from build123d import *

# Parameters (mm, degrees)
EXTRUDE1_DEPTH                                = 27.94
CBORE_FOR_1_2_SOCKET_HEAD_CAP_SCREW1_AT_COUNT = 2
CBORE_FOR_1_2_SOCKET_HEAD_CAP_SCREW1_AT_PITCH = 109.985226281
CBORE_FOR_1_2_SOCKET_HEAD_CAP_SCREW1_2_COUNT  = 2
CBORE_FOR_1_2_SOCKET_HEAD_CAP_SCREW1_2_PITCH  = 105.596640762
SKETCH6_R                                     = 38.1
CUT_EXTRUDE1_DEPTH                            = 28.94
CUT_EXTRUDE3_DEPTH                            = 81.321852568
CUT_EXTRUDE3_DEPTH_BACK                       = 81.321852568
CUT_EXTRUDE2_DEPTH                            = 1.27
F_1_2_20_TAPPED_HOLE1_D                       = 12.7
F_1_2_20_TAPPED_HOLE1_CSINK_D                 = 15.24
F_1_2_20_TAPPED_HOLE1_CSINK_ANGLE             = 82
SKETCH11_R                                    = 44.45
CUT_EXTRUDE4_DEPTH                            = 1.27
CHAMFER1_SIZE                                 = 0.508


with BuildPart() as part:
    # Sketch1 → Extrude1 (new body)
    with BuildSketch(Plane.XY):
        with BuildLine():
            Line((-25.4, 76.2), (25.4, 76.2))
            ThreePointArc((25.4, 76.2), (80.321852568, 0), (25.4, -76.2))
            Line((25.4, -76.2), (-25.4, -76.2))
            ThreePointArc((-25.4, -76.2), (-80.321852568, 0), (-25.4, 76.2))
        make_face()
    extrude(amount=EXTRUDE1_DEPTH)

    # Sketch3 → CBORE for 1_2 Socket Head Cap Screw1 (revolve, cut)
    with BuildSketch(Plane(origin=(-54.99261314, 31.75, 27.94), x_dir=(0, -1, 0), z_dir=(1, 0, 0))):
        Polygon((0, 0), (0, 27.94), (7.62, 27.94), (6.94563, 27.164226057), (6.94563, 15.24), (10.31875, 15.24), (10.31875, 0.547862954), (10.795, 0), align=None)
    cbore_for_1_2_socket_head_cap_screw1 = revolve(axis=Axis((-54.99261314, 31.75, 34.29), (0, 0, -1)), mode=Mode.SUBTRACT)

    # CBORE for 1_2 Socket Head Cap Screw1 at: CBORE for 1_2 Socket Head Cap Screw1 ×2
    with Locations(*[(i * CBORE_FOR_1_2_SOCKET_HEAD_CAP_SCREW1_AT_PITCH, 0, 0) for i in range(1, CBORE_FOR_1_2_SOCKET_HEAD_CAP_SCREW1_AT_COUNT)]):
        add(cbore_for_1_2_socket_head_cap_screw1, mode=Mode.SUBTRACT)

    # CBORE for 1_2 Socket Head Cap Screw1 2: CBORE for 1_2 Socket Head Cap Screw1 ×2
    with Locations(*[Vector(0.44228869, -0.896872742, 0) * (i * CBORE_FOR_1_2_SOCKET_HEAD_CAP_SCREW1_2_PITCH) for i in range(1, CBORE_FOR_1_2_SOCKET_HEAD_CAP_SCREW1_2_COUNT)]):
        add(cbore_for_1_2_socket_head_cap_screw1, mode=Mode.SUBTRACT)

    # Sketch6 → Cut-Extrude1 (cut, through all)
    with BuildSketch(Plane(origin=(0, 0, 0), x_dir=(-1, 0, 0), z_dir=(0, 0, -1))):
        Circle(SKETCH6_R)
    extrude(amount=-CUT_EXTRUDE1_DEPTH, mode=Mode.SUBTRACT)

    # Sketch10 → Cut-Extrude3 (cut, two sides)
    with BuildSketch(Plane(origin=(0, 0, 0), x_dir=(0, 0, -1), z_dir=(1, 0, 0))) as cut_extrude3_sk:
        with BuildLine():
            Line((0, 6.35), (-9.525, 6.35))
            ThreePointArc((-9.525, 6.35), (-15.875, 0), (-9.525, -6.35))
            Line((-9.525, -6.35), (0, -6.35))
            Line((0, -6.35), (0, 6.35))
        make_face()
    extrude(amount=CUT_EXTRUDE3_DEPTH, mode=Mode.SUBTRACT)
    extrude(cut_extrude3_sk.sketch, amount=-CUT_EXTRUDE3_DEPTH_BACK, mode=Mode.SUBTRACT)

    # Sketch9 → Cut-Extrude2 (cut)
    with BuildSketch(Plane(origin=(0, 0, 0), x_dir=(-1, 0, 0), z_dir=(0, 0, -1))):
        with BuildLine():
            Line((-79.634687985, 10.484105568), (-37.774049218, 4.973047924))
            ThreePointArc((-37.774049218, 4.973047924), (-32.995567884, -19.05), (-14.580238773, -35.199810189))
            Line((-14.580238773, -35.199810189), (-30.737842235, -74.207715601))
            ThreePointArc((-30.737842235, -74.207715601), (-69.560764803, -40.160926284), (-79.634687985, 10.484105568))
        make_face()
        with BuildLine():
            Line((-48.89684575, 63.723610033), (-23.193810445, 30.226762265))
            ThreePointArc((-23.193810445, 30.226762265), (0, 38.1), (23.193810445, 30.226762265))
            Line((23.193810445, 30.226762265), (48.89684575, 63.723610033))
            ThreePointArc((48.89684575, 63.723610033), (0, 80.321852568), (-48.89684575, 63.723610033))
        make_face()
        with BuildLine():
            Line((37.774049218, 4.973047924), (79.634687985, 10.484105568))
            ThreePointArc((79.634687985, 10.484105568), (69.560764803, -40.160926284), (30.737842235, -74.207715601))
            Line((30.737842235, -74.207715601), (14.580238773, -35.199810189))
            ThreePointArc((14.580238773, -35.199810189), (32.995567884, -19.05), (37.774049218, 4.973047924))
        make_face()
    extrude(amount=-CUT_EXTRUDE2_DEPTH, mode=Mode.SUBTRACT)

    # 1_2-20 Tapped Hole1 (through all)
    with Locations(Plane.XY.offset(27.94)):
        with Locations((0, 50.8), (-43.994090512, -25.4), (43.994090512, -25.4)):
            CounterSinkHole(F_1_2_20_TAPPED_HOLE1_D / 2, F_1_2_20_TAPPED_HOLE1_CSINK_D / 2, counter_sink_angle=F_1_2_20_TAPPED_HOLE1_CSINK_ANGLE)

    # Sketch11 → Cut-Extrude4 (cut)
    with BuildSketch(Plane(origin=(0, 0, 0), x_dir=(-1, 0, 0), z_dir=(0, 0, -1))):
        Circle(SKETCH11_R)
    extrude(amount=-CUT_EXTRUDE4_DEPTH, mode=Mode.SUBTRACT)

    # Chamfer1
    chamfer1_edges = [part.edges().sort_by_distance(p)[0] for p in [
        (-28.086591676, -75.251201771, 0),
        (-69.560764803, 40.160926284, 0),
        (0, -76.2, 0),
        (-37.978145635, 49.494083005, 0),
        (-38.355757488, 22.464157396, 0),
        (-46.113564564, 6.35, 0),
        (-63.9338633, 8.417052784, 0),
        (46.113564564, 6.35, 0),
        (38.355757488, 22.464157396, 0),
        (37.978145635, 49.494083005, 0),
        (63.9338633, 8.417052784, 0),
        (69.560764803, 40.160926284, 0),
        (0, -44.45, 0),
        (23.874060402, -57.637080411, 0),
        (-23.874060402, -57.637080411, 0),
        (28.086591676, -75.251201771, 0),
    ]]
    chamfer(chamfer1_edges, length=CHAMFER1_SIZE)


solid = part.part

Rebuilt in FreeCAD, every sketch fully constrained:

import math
import FreeCAD as App
import Part
import Sketcher

V = App.Vector
Q = App.Units.Quantity


def edges_at(feature, points):
    """Names of the edges that pass closest to the given points."""
    edges = feature.Shape.Edges
    near = lambda p: min(range(len(edges)), key=lambda i: edges[i].distToShape(Part.Vertex(*p))[0])
    return sorted({f"Edge{near(p) + 1}" for p in points})


def add_polygon(sketch, points):
    """Adds a closed chain of lines whose ends are joined by coincident constraints."""
    first, n = sketch.GeometryCount, len(points)
    for a, b in zip(points, points[1:] + points[:1]):
        sketch.addGeometry(Part.LineSegment(App.Vector(*a, 0), App.Vector(*b, 0)), False)
    for i in range(n):
        sketch.addConstraint(Sketcher.Constraint("Coincident", first + i, 2, first + (i + 1) % n, 1))

doc = App.newDocument("Part")
body = doc.addObject("PartDesign::Body", "Body")

# Sketch on XY plane
sketch1 = body.newObject("Sketcher::SketchObject", "Sketch")
sketch1.AttachmentSupport = (doc.getObject("XY_Plane"), [""])
sketch1.MapMode = "FlatFace"
sketch1.addGeometry(Part.LineSegment(V(25, 76, 0), V(-25, 76, 0)), False)
sketch1.addGeometry(Part.ArcOfCircle(Part.Circle(V(0, 0, 0), V(0, 0, 1), 80), math.radians(108), math.radians(252)), False)
sketch1.addGeometry(Part.LineSegment(V(-25, -76, 0), V(25, -76, 0)), False)
sketch1.addGeometry(Part.ArcOfCircle(Part.Circle(V(0, 0, 0), V(0, 0, 1), 80), math.radians(-72), math.radians(72)), False)
sketch1.addConstraint(Sketcher.Constraint("Coincident", 0, 2, 1, 1))
sketch1.addConstraint(Sketcher.Constraint("Coincident", 1, 2, 2, 1))
sketch1.addConstraint(Sketcher.Constraint("Coincident", 2, 2, 3, 1))
sketch1.addConstraint(Sketcher.Constraint("Coincident", 3, 2, 0, 1))
sketch1.addConstraint(Sketcher.Constraint("Horizontal", 0))
sketch1.addConstraint(Sketcher.Constraint("Horizontal", 2))
sketch1.addConstraint(Sketcher.Constraint("Coincident", 1, 3, -1, 1))
sketch1.addConstraint(Sketcher.Constraint("Coincident", 3, 3, -1, 1))
sketch1.addConstraint(Sketcher.Constraint("Equal", 1, 3))
sketch1.addConstraint(Sketcher.Constraint("Vertical", 0, 2, 1, 2))
sketch1.addConstraint(Sketcher.Constraint("DistanceX", 0, 2, 0, 1, Q("2 in")))
sketch1.addConstraint(Sketcher.Constraint("DistanceY", -1, 1, 0, 2, Q("3 in")))
pad1 = body.newObject("PartDesign::Pad", "Pad")
pad1.Profile = sketch1
pad1.Length = Q("1.1 in")

# Sketch on YZ plane
sketch2 = body.newObject("Sketcher::SketchObject", "Sketch001")
sketch2.AttachmentSupport = (doc.getObject("YZ_Plane"), [""])
sketch2.MapMode = "FlatFace"
sketch2.AttachmentOffset = App.Placement(V(0, 0, -54.992613), App.Rotation())
add_polygon(sketch2, [(31.8, 0), (31.8, 27.9), (21, 27.9), (21.4, 27.4), (21.4, 12.7), (24.8, 12.7), (24.8, 0.8), (24.1, 0)])  # lines 0-7
sketch2.addGeometry(Part.LineSegment(V(31.8, 27.9, 0), V(31.8, 0, 0)), True)  # axis
sketch2.addConstraint(Sketcher.Constraint("Vertical", 0))
sketch2.addConstraint(Sketcher.Constraint("Horizontal", 1))
sketch2.addConstraint(Sketcher.Constraint("Vertical", 3))
sketch2.addConstraint(Sketcher.Constraint("Horizontal", 4))
sketch2.addConstraint(Sketcher.Constraint("Vertical", 5))
sketch2.addConstraint(Sketcher.Constraint("Horizontal", 7))
sketch2.addConstraint(Sketcher.Constraint("Vertical", 8))
sketch2.addConstraint(Sketcher.Constraint("Coincident", 8, 1, 0, 2))
sketch2.addConstraint(Sketcher.Constraint("PointOnObject", 6, 2, -1))
sketch2.addConstraint(Sketcher.Constraint("PointOnObject", 8, 2, -1))
sketch2.addConstraint(Sketcher.Constraint("DistanceX", 7, 1, 7, 2, Q("0.3 in")))
sketch2.addConstraint(Sketcher.Constraint("DistanceY", 0, 1, 0, 2, Q("1.1 in")))
sketch2.addConstraint(Sketcher.Constraint("Angle", 2, Q("-49 deg")))
sketch2.addConstraint(Sketcher.Constraint("Angle", 6, Q("-131 deg")))
sketch2.addConstraint(Sketcher.Constraint("DistanceY", -1, 1, 3, 2, Q("0.5 in")))
sketch2.addConstraint(Sketcher.Constraint("DistanceX", 1, 2, 1, 1, Q("0.425 in")))
sketch2.addConstraint(Sketcher.Constraint("DistanceX", -1, 1, 0, 2, Q("1.25 in")))
sketch2.addConstraint(Sketcher.Constraint("DistanceX", 4, 1, 4, 2, Q("0.1328 in")))
sketch2.addConstraint(Sketcher.Constraint("DistanceX", -1, 1, 2, 2, Q("0.84375 in")))
groove = body.newObject("PartDesign::Groove", "Groove")
groove.Profile = sketch2
groove.ReferenceAxis = (sketch2, ["Axis0"])
groove.Angle = 360
doc.recompute()

linearpattern = body.newObject("PartDesign::LinearPattern", "LinearPattern")
linearpattern.Originals = [groove]
linearpattern.Direction = (doc.getObject("X_Axis"), [""])
linearpattern.Mode = "offset"
linearpattern.Offset = 109.985226
linearpattern.Occurrences = 2
body.Tip = linearpattern
doc.recompute()

datumline = body.newObject("PartDesign::Line", "DatumLine")
datumline.Placement = App.Placement(V(0, 0, 0), App.Rotation(V(0, 0, 1), V(0.44228869, -0.896872742, 0)))
linearpattern2 = body.newObject("PartDesign::LinearPattern", "LinearPattern001")
linearpattern2.Originals = [groove]
linearpattern2.Direction = (datumline, [""])
linearpattern2.Mode = "offset"
linearpattern2.Offset = 105.596641
linearpattern2.Occurrences = 2
body.Tip = linearpattern2

# Sketch on XY plane
sketch3 = body.newObject("Sketcher::SketchObject", "Sketch002")
sketch3.AttachmentSupport = (doc.getObject("XY_Plane"), [""])
sketch3.MapMode = "FlatFace"
sketch3.addGeometry(Part.Circle(V(0, 0, 0), V(0, 0, 1), 38), False)
sketch3.addConstraint(Sketcher.Constraint("Coincident", 0, 3, -1, 1))
sketch3.addConstraint(Sketcher.Constraint("Diameter", 0, Q("3 in")))
pocket1 = body.newObject("PartDesign::Pocket", "Pocket")
pocket1.Profile = sketch3
pocket1.Type = "ThroughAll"
pocket1.Reversed = True

# Sketch on YZ plane
sketch4 = body.newObject("Sketcher::SketchObject", "Sketch003")
sketch4.AttachmentSupport = (doc.getObject("YZ_Plane"), [""])
sketch4.MapMode = "FlatFace"
sketch4.addGeometry(Part.LineSegment(V(6, 0, 0), V(6, 10, 0)), False)
sketch4.addGeometry(Part.ArcOfCircle(Part.Circle(V(0, 10, 0), V(0, 0, 1), 6), math.radians(0), math.radians(180)), False)
sketch4.addGeometry(Part.LineSegment(V(-6, 10, 0), V(-6, 0, 0)), False)
sketch4.addGeometry(Part.LineSegment(V(-6, 0, 0), V(6, 0, 0)), False)
sketch4.addConstraint(Sketcher.Constraint("Tangent", 0, 2, 1, 1))
sketch4.addConstraint(Sketcher.Constraint("Tangent", 1, 2, 2, 1))
sketch4.addConstraint(Sketcher.Constraint("Coincident", 2, 2, 3, 1))
sketch4.addConstraint(Sketcher.Constraint("Coincident", 3, 2, 0, 1))
sketch4.addConstraint(Sketcher.Constraint("Vertical", 0))
sketch4.addConstraint(Sketcher.Constraint("Vertical", 2))
sketch4.addConstraint(Sketcher.Constraint("Horizontal", 3))
sketch4.addConstraint(Sketcher.Constraint("Symmetric", 2, 2, 3, 2, -1, 1))
sketch4.addConstraint(Sketcher.Constraint("Radius", 1, Q("0.25 in")))
sketch4.addConstraint(Sketcher.Constraint("DistanceY", 0, 1, 0, 2, Q("0.375 in")))
pocket2 = body.newObject("PartDesign::Pocket", "Pocket001")
pocket2.Profile = sketch4
pocket2.Type = "ThroughAll"
pocket2.Midplane = True

# Sketch on XY plane
sketch5 = body.newObject("Sketcher::SketchObject", "Sketch004")
sketch5.AttachmentSupport = (doc.getObject("XY_Plane"), [""])
sketch5.MapMode = "FlatFace"
sketch5.addGeometry(Part.LineSegment(V(38, 5, 0), V(80, 10, 0)), False)
sketch5.addGeometry(Part.ArcOfCircle(Part.Circle(V(0, 0, 0), V(0, 0, 1), 80), math.radians(-67), math.radians(7)), False)
sketch5.addGeometry(Part.LineSegment(V(31, -74, 0), V(15, -35, 0)), False)
sketch5.addGeometry(Part.ArcOfCircle(Part.Circle(V(0, 0, 0), V(0, 0, 1), 38), math.radians(-67), math.radians(8)), False)
sketch5.addGeometry(Part.LineSegment(V(49, 64, 0), V(23, 30, 0)), False)
sketch5.addGeometry(Part.ArcOfCircle(Part.Circle(V(0, 0, 0), V(0, 0, 1), 38), math.radians(52), math.radians(128)), False)
sketch5.addGeometry(Part.LineSegment(V(-23, 30, 0), V(-49, 64, 0)), False)
sketch5.addGeometry(Part.ArcOfCircle(Part.Circle(V(0, 0, 0), V(0, 0, 1), 80), math.radians(52), math.radians(128)), False)
sketch5.addGeometry(Part.LineSegment(V(-80, 10, 0), V(-38, 5, 0)), False)
sketch5.addGeometry(Part.ArcOfCircle(Part.Circle(V(0, 0, 0), V(0, 0, 1), 38), math.radians(172), math.radians(247)), False)
sketch5.addGeometry(Part.LineSegment(V(-15, -35, 0), V(-31, -74, 0)), False)
sketch5.addGeometry(Part.ArcOfCircle(Part.Circle(V(0, 0, 0), V(0, 0, 1), 80), math.radians(173), math.radians(247)), False)
sketch5.addConstraint(Sketcher.Constraint("Coincident", 0, 2, 1, 2))
sketch5.addConstraint(Sketcher.Constraint("Coincident", 1, 1, 2, 1))
sketch5.addConstraint(Sketcher.Constraint("Coincident", 2, 2, 3, 1))
sketch5.addConstraint(Sketcher.Constraint("Coincident", 3, 2, 0, 1))
sketch5.addConstraint(Sketcher.Constraint("Coincident", 4, 2, 5, 1))
sketch5.addConstraint(Sketcher.Constraint("Coincident", 5, 2, 6, 1))
sketch5.addConstraint(Sketcher.Constraint("Coincident", 6, 2, 7, 2))
sketch5.addConstraint(Sketcher.Constraint("Coincident", 7, 1, 4, 1))
sketch5.addConstraint(Sketcher.Constraint("Coincident", 8, 2, 9, 1))
sketch5.addConstraint(Sketcher.Constraint("Coincident", 9, 2, 10, 1))
sketch5.addConstraint(Sketcher.Constraint("Coincident", 10, 2, 11, 2))
sketch5.addConstraint(Sketcher.Constraint("Coincident", 11, 1, 8, 1))
sketch5.addConstraint(Sketcher.Constraint("Coincident", 1, 3, -1, 1))
sketch5.addConstraint(Sketcher.Constraint("Coincident", 3, 3, -1, 1))
sketch5.addConstraint(Sketcher.Constraint("Coincident", 5, 3, -1, 1))
sketch5.addConstraint(Sketcher.Constraint("Coincident", 7, 3, -1, 1))
sketch5.addConstraint(Sketcher.Constraint("Coincident", 9, 3, -1, 1))
sketch5.addConstraint(Sketcher.Constraint("Coincident", 11, 3, -1, 1))
sketch5.addConstraint(Sketcher.Constraint("Equal", 3, 5))
sketch5.addConstraint(Sketcher.Constraint("Equal", 1, 7))
sketch5.addConstraint(Sketcher.Constraint("Equal", 5, 9))
sketch5.addConstraint(Sketcher.Constraint("Equal", 7, 11))
sketch5.addConstraint(Sketcher.Constraint("Horizontal", 4, 2, 5, 2))
sketch5.addConstraint(Sketcher.Constraint("Horizontal", 6, 2, 7, 1))
sketch5.addConstraint(Sketcher.Constraint("Horizontal", 3, 2, 8, 2))
sketch5.addConstraint(Sketcher.Constraint("Horizontal", 2, 2, 9, 2))
sketch5.addConstraint(Sketcher.Constraint("Horizontal", 1, 1, 10, 2))
sketch5.addConstraint(Sketcher.Constraint("Horizontal", 0, 2, 11, 1))
sketch5.addConstraint(Sketcher.Constraint("Radius", 3, Q("1.5 in")))
sketch5.addConstraint(Sketcher.Constraint("Angle", 0, Q("7.5 deg")))
sketch5.addConstraint(Sketcher.Constraint("Angle", 2, Q("112.5 deg")))
sketch5.addConstraint(Sketcher.Constraint("Angle", 4, Q("-127.5 deg")))
sketch5.addConstraint(Sketcher.Constraint("Radius", 1, Q("80.321853 mm")))
sketch5.addConstraint(Sketcher.Constraint("DistanceX", -1, 1, 2, 2, Q("14.580239 mm")))
sketch5.addConstraint(Sketcher.Constraint("DistanceX", -1, 1, 3, 2, Q("37.774049 mm")))
sketch5.addConstraint(Sketcher.Constraint("DistanceX", -1, 1, 4, 2, Q("23.19381 mm")))
pocket3 = body.newObject("PartDesign::Pocket", "Pocket002")
pocket3.Profile = sketch5
pocket3.Length = Q("0.05 in")
pocket3.Reversed = True

# Sketch on XY plane
sketch6 = body.newObject("Sketcher::SketchObject", "Sketch005")
sketch6.AttachmentSupport = (doc.getObject("XY_Plane"), [""])
sketch6.MapMode = "FlatFace"
sketch6.AttachmentOffset = App.Placement(V(0, 0, 1.1 * 25.4), App.Rotation())
sketch6.addGeometry(Part.Circle(V(0, 51, 0), V(0, 0, 1), 6), False)
sketch6.addGeometry(Part.Circle(V(-44, -25, 0), V(0, 0, 1), 6), False)
sketch6.addGeometry(Part.Circle(V(44, -25, 0), V(0, 0, 1), 6), False)
sketch6.addConstraint(Sketcher.Constraint("Equal", 0, 1))
sketch6.addConstraint(Sketcher.Constraint("Equal", 1, 2))
sketch6.addConstraint(Sketcher.Constraint("Symmetric", 1, 3, 2, 3, -2))
sketch6.addConstraint(Sketcher.Constraint("PointOnObject", 0, 3, -2))
sketch6.addConstraint(Sketcher.Constraint("Diameter", 0, Q("0.5 in")))
sketch6.addConstraint(Sketcher.Constraint("DistanceY", -1, 1, 0, 3, Q("2 in")))
sketch6.addConstraint(Sketcher.Constraint("DistanceY", 1, 3, -1, 1, Q("1 in")))
sketch6.addConstraint(Sketcher.Constraint("DistanceX", 1, 3, -1, 1, Q("43.994091 mm")))
doc.recompute()
hole = body.newObject("PartDesign::Hole", "Hole")
hole.Profile = sketch6
hole.ThreadType = "None"
hole.Diameter = Q("0.5 in")
hole.DepthType = "ThroughAll"
hole.HoleCutType = "Countersink"
hole.HoleCutDiameter = Q("0.6 in")
hole.HoleCutCountersinkAngle = 82

# Sketch on XY plane
sketch7 = body.newObject("Sketcher::SketchObject", "Sketch006")
sketch7.AttachmentSupport = (doc.getObject("XY_Plane"), [""])
sketch7.MapMode = "FlatFace"
sketch7.addGeometry(Part.Circle(V(0, 0, 0), V(0, 0, 1), 44), False)
sketch7.addConstraint(Sketcher.Constraint("Coincident", 0, 3, -1, 1))
sketch7.addConstraint(Sketcher.Constraint("Diameter", 0, Q("3.5 in")))
pocket4 = body.newObject("PartDesign::Pocket", "Pocket003")
pocket4.Profile = sketch7
pocket4.Length = Q("0.05 in")
pocket4.Reversed = True
doc.recompute()

chamfer = body.newObject("PartDesign::Chamfer", "Chamfer")
chamfer.Base = (pocket4, edges_at(pocket4, [
    (-28.087, -75.251, 0),
    (-69.561, 40.161, 0),
    (0, -76.2, 0),
    (-37.978, 49.494, 0),
    (-38.356, 22.464, 0),
    (-46.114, 6.35, 0),
    (-63.934, 8.417, 0),
    (46.114, 6.35, 0),
    (38.356, 22.464, 0),
    (37.978, 49.494, 0),
    (63.934, 8.417, 0),
    (69.561, 40.161, 0),
    (0, -44.45, 0),
    (23.874, -57.637, 0),
    (-23.874, -57.637, 0),
    (28.087, -75.251, 0),
]))
chamfer.Size = Q("0.02 in")

doc.recompute()
